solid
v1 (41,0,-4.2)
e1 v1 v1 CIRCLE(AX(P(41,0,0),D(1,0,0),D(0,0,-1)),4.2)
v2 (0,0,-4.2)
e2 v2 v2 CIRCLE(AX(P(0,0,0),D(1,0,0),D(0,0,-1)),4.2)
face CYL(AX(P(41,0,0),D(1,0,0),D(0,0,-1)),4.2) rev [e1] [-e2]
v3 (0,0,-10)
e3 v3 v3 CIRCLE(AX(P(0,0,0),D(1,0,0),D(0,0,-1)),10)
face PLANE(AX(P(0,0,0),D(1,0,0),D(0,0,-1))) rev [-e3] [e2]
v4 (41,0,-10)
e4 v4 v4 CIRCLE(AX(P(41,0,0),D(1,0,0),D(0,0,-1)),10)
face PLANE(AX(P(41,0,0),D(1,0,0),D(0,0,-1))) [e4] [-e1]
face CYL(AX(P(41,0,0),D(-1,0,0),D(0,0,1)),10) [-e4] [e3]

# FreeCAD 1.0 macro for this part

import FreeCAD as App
import Part
import Sketcher

V = App.Vector

doc = App.newDocument("Part")
params = doc.addObject("Spreadsheet::Sheet", "Params")
for row, (alias, value) in enumerate([
    ("sketch1_diameter", "20 mm"),
    ("pad1_length", "41 mm"),
    ("sketch2_diameter", "8.4 mm"),
    ("hole_diameter", "8.4 mm"),
], start=1):
    params.set(f"A{row}", alias)
    params.set(f"B{row}", "=" + value)
    params.setAlias(f"B{row}", alias)

body = doc.addObject("PartDesign::Body", "Body")

# Sketch on YZ plane
sketch1 = body.newObject("Sketcher::SketchObject", "Sketch")
sketch1.AttachmentSupport = (doc.getObject("YZ_Plane"), [""])
sketch1.MapMode = "FlatFace"
sketch1.addGeometry(Part.Circle(V(0, 0, 0), V(0, 0, 1), 10), False)
sketch1.addConstraint([
    Sketcher.Constraint("Coincident", 0, 3, -1, 1),
    Sketcher.Constraint("Diameter", 0, 20.0),
])
sketch1.setExpression("Constraints[1]", "Params.sketch1_diameter")
pad1 = body.newObject("PartDesign::Pad", "Pad")
pad1.Profile = sketch1
pad1.setExpression("Length", "Params.pad1_length")

# Sketch on YZ plane
sketch2 = body.newObject("Sketcher::SketchObject", "Sketch001")
sketch2.AttachmentSupport = (doc.getObject("YZ_Plane"), [""])
sketch2.MapMode = "FlatFace"
sketch2.AttachmentOffset = App.Placement(V(0, 0, 41), App.Rotation())
sketch2.addGeometry(Part.Circle(V(0, 0, 0), V(0, 0, 1), 4.2), False)
sketch2.addConstraint([
    Sketcher.Constraint("Coincident", 0, 3, -1, 1),
    Sketcher.Constraint("Diameter", 0, 8.4),
])
sketch2.setExpression("Constraints[1]", "Params.sketch2_diameter")
doc.recompute()
hole = body.newObject("PartDesign::Hole", "Hole")
hole.Profile = sketch2
hole.ThreadType = "None"
hole.setExpression("Diameter", "Params.hole_diameter")
hole.DepthType = "ThroughAll"

doc.recompute()
